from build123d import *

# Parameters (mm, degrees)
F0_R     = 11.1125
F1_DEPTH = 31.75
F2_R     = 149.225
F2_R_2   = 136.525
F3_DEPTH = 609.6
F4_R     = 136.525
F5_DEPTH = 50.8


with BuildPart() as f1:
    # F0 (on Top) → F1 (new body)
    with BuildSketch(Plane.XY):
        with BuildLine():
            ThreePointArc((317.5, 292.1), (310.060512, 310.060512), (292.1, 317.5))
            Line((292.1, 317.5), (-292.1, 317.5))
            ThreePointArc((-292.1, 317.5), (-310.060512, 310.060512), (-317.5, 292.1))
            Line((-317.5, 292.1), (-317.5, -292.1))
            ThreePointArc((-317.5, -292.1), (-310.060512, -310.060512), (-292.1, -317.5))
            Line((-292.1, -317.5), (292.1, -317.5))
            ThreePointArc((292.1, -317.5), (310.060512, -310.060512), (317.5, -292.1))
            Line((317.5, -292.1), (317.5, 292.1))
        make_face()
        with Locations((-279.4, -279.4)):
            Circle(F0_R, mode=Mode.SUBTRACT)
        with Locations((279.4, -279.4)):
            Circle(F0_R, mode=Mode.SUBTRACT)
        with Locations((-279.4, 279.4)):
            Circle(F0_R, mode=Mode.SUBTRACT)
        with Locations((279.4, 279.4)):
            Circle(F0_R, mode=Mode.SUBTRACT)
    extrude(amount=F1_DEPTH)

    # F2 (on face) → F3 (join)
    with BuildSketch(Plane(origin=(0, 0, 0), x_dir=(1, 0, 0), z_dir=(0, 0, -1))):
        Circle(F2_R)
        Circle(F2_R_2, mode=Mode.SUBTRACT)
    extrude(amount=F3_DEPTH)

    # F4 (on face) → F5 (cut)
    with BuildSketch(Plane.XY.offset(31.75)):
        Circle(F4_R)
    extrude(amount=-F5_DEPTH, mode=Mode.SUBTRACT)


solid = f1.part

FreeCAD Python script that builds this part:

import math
import FreeCAD as App
import Part
import Sketcher

V = App.Vector
Q = App.Units.Quantity

doc = App.newDocument("Part")
body = doc.addObject("PartDesign::Body", "Body")

# Sketch on XY plane
sketch1 = body.newObject("Sketcher::SketchObject", "Sketch")
sketch1.AttachmentSupport = (doc.getObject("XY_Plane"), [""])
sketch1.MapMode = "FlatFace"
sketch1.addGeometry([
    Part.ArcOfCircle(Part.Circle(V(292.099999, 292.099999, 0), V(0, 0, 1), 25.400001), math.radians(0.000002), math.radians(89.999998)),  # 0
    Part.LineSegment(V(292.1, 317.5, 0), V(-292.1, 317.5, 0)),  # 1
    Part.ArcOfCircle(Part.Circle(V(-292.099999, 292.099999, 0), V(0, 0, 1), 25.400001), math.radians(90.000002), math.radians(179.999998)),  # 2
    Part.LineSegment(V(-317.5, 292.1, 0), V(-317.5, -292.1, 0)),  # 3
    Part.ArcOfCircle(Part.Circle(V(-292.099999, -292.099999, 0), V(0, 0, 1), 25.400001), math.radians(-179.999998), math.radians(-90.000002)),  # 4
    Part.LineSegment(V(-292.1, -317.5, 0), V(292.1, -317.5, 0)),  # 5
    Part.ArcOfCircle(Part.Circle(V(292.099999, -292.099999, 0), V(0, 0, 1), 25.400001), math.radians(-89.999998), math.radians(-0.000002)),  # 6
    Part.LineSegment(V(317.5, -292.1, 0), V(317.5, 292.1, 0)),  # 7
    Part.Circle(V(-279.4, -279.4, 0), V(0, 0, 1), 11.1125),  # 8
    Part.Circle(V(279.4, -279.4, 0), V(0, 0, 1), 11.1125),  # 9
    Part.Circle(V(-279.4, 279.4, 0), V(0, 0, 1), 11.1125),  # 10
    Part.Circle(V(279.4, 279.4, 0), V(0, 0, 1), 11.1125),  # 11
], False)
sketch1.addConstraint([
    Sketcher.Constraint("Tangent", 0, 2, 1, 1),
    Sketcher.Constraint("Tangent", 1, 2, 2, 1),
    Sketcher.Constraint("Tangent", 2, 2, 3, 1),
    Sketcher.Constraint("Tangent", 3, 2, 4, 1),
    Sketcher.Constraint("Tangent", 4, 2, 5, 1),
    Sketcher.Constraint("Tangent", 5, 2, 6, 1),
    Sketcher.Constraint("Tangent", 6, 2, 7, 1),
    Sketcher.Constraint("Tangent", 7, 2, 0, 1),
    Sketcher.Constraint("Horizontal", 1),
    Sketcher.Constraint("Vertical", 3),
    Sketcher.Constraint("Horizontal", 5),
    Sketcher.Constraint("Vertical", 7),
    Sketcher.Constraint("Equal", 0, 2),
    Sketcher.Constraint("Equal", 2, 4),
    Sketcher.Constraint("Equal", 4, 6),
    Sketcher.Constraint("Equal", 8, 9),
    Sketcher.Constraint("Equal", 9, 10),
    Sketcher.Constraint("Equal", 10, 11),
    Sketcher.Constraint("Symmetric", 0, 3, 4, 3, -1, 1),
    Sketcher.Constraint("Symmetric", 9, 3, 10, 3, -1, 1),
    Sketcher.Constraint("Symmetric", 8, 3, 11, 3, -1, 1),
    Sketcher.Constraint("Symmetric", 8, 3, 9, 3, -2),
    Sketcher.Constraint("Equal", 5, 3),
    Sketcher.Constraint("Radius", 0, Q("1 in")),
    Sketcher.Constraint("DistanceX", 1, 2, 1, 1, Q("23 in")),
    Sketcher.Constraint("Diameter", 8, Q("0.875 in")),
    Sketcher.Constraint("DistanceX", 8, 3, -1, 1, Q("11 in")),
    Sketcher.Constraint("DistanceY", 8, 3, -1, 1, Q("11 in")),
])
pad1 = body.newObject("PartDesign::Pad", "Pad")
pad1.Profile = sketch1
pad1.Length = Q("1.25 in")

# Sketch on XY plane
sketch2 = body.newObject("Sketcher::SketchObject", "Sketch001")
sketch2.AttachmentSupport = (doc.getObject("XY_Plane"), [""])
sketch2.MapMode = "FlatFace"
sketch2.addGeometry([
    Part.Circle(V(0, 0, 0), V(0, 0, 1), 149.225),
    Part.Circle(V(0, 0, 0), V(0, 0, 1), 136.525),
], False)
sketch2.addConstraint([
    Sketcher.Constraint("Coincident", 0, 3, -1, 1),
    Sketcher.Constraint("Coincident", 1, 3, -1, 1),
    Sketcher.Constraint("Diameter", 0, Q("11.75 in")),
    Sketcher.Constraint("Diameter", 1, Q("10.75 in")),
])
pad2 = body.newObject("PartDesign::Pad", "Pad001")
pad2.Profile = sketch2
pad2.Length = Q("24 in")
pad2.Reversed = True

# Sketch on XY plane
sketch3 = body.newObject("Sketcher::SketchObject", "Sketch002")
sketch3.AttachmentSupport = (doc.getObject("XY_Plane"), [""])
sketch3.MapMode = "FlatFace"
sketch3.AttachmentOffset = App.Placement(V(0, 0, 1.25 * 25.4), App.Rotation())
sketch3.addGeometry(Part.Circle(V(0, 0, 0), V(0, 0, 1), 136.525), False)
sketch3.addConstraint([
    Sketcher.Constraint("Coincident", 0, 3, -1, 1),
    Sketcher.Constraint("Diameter", 0, Q("10.75 in")),
])
pocket1 = body.newObject("PartDesign::Pocket", "Pocket")
pocket1.Profile = sketch3
pocket1.Length = Q("2 in")

doc.recompute()
